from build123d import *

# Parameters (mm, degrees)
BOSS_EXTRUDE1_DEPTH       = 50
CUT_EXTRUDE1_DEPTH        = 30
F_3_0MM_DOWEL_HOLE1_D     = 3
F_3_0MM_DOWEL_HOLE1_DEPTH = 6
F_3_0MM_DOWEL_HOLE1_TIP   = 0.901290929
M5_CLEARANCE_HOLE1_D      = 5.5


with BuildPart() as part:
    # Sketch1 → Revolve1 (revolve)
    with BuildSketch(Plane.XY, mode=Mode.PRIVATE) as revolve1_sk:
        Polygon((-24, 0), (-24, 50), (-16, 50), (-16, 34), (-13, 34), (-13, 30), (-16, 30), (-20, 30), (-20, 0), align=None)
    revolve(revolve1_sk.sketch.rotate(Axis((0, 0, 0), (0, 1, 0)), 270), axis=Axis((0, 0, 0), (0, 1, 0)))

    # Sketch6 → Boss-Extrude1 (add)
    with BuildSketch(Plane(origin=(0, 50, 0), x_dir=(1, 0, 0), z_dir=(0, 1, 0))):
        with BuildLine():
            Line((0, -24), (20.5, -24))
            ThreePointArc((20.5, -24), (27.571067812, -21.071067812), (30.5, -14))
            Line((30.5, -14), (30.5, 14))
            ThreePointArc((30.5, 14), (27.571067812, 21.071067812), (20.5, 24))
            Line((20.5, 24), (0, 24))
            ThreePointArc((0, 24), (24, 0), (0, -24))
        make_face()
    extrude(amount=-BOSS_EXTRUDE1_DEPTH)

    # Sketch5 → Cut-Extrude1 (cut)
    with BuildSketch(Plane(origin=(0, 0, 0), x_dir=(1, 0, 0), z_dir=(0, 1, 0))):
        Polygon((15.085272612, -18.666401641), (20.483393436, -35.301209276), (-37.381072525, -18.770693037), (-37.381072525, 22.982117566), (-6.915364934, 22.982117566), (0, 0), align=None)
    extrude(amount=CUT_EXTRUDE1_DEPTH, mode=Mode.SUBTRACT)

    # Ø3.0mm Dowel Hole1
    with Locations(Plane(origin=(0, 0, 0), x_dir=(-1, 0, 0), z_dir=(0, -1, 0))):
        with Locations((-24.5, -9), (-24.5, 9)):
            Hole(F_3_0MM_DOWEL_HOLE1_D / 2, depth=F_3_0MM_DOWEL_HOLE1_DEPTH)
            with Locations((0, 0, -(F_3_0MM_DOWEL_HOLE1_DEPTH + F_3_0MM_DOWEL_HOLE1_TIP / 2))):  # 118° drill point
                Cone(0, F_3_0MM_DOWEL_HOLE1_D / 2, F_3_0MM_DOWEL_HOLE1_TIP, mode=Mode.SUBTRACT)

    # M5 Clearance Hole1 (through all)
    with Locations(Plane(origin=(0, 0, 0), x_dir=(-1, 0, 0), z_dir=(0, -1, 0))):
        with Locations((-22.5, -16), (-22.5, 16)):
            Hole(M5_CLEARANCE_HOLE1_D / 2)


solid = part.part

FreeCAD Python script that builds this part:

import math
import FreeCAD as App
import Part
import Sketcher

V = App.Vector


def add_polygon(sketch, points):
    """Adds a closed chain of lines whose ends are joined by coincident constraints."""
    first, n = sketch.GeometryCount, len(points)
    for a, b in zip(points, points[1:] + points[:1]):
        sketch.addGeometry(Part.LineSegment(App.Vector(*a, 0), App.Vector(*b, 0)), False)
    for i in range(n):
        sketch.addConstraint(Sketcher.Constraint("Coincident", first + i, 2, first + (i + 1) % n, 1))

doc = App.newDocument("Part")
body = doc.addObject("PartDesign::Body", "Body")

# Sketch on XY plane
sketch1 = body.newObject("Sketcher::SketchObject", "Sketch")
sketch1.AttachmentSupport = (doc.getObject("XY_Plane"), [""])
sketch1.MapMode = "FlatFace"
add_polygon(sketch1, [(-24, 50), (-24, 0), (-20, 0), (-20, 30), (-13, 30), (-13, 34), (-16, 34), (-16, 50)])  # lines 0-7
sketch1.addConstraint([
    Sketcher.Constraint("Vertical", 0),
    Sketcher.Constraint("Horizontal", 1),
    Sketcher.Constraint("Vertical", 2),
    Sketcher.Constraint("Horizontal", 3),
    Sketcher.Constraint("Vertical", 4),
    Sketcher.Constraint("Horizontal", 5),
    Sketcher.Constraint("Vertical", 6),
    Sketcher.Constraint("Horizontal", 7),
    Sketcher.Constraint("PointOnObject", 0, 2, -1),
    Sketcher.Constraint("Equal", 1, 4),
    Sketcher.Constraint("DistanceX", 1, 1, 1, 2, 4.0),
    Sketcher.Constraint("DistanceX", 3, 1, 3, 2, 7.0),
    Sketcher.Constraint("DistanceX", 5, 2, 5, 1, 3.0),
    Sketcher.Constraint("DistanceY", 0, 2, 0, 1, 50.0),
    Sketcher.Constraint("DistanceY", 2, 1, 2, 2, 30.0),
    Sketcher.Constraint("DistanceX", 0, 2, -1, 1, 24.0),
])
revolution = body.newObject("PartDesign::Revolution", "Revolution")
revolution.Profile = sketch1
revolution.ReferenceAxis = (sketch1, ["V_Axis"])
revolution.Angle = 360

# Sketch on XZ plane
sketch2 = body.newObject("Sketcher::SketchObject", "Sketch001")
sketch2.AttachmentSupport = (doc.getObject("XZ_Plane"), [""])
sketch2.MapMode = "FlatFace"
sketch2.AttachmentOffset = App.Placement(V(0, 0, -50), App.Rotation())
sketch2.addGeometry([
    Part.LineSegment(V(0, 24, 0), V(20, 24, 0)),  # 0
    Part.ArcOfCircle(Part.Circle(V(20, 14, 0), V(0, 0, 1), 10), math.radians(0), math.radians(90)),  # 1
    Part.LineSegment(V(30, 14, 0), V(30, -14, 0)),  # 2
    Part.ArcOfCircle(Part.Circle(V(20, -14, 0), V(0, 0, 1), 10), math.radians(-90), math.radians(0)),  # 3
    Part.LineSegment(V(20, -24, 0), V(0, -24, 0)),  # 4
    Part.ArcOfCircle(Part.Circle(V(0, 0, 0), V(0, 0, 1), 24), math.radians(-90), math.radians(90)),  # 5
], False)
sketch2.addConstraint([
    Sketcher.Constraint("Tangent", 0, 2, 1, 2),
    Sketcher.Constraint("Tangent", 1, 1, 2, 1),
    Sketcher.Constraint("Tangent", 2, 2, 3, 2),
    Sketcher.Constraint("Tangent", 3, 1, 4, 1),
    Sketcher.Constraint("Tangent", 4, 2, 5, 1),
    Sketcher.Constraint("Tangent", 5, 2, 0, 1),
    Sketcher.Constraint("Horizontal", 0),
    Sketcher.Constraint("Vertical", 2),
    Sketcher.Constraint("Horizontal", 4),
    Sketcher.Constraint("Coincident", 5, 3, -1, 1),
    Sketcher.Constraint("Equal", 1, 3),
    Sketcher.Constraint("Radius", 1, 10.0),
    Sketcher.Constraint("Radius", 5, 24.0),
    Sketcher.Constraint("DistanceX", 0, 1, 0, 2, 20.5),
])
pad1 = body.newObject("PartDesign::Pad", "Pad")
pad1.Profile = sketch2
pad1.Length = 50

# Sketch on XZ plane
sketch3 = body.newObject("Sketcher::SketchObject", "Sketch002")
sketch3.AttachmentSupport = (doc.getObject("XZ_Plane"), [""])
sketch3.MapMode = "FlatFace"
add_polygon(sketch3, [(20, 35), (15, 19), (0, 0), (-7, -23), (-37, -23), (-37, 19)])  # lines 0-5
sketch3.addConstraint([
    Sketcher.Constraint("Horizontal", 3),
    Sketcher.Constraint("Vertical", 4),
    Sketcher.Constraint("Coincident", 1, 2, -1, 1),
    Sketcher.Constraint("Equal", 1, 2),
    Sketcher.Constraint("Distance", 1, 24.0),
    Sketcher.Constraint("DistanceY", 4, 1, 4, 2, 41.752811),
    Sketcher.Constraint("DistanceY", -1, 1, 0, 2, 18.666402),
    Sketcher.Constraint("Distance", 5, 60.179352),
    Sketcher.Constraint("DistanceX", 3, 2, 3, 1, 30.465708),
    Sketcher.Constraint("DistanceY", -1, 1, 5, 2, 35.301209),
    Sketcher.Constraint("DistanceY", 2, 2, 0, 2, 41.648519),
])
pocket1 = body.newObject("PartDesign::Pocket", "Pocket")
pocket1.Profile = sketch3
pocket1.Length = 30

# Sketch on XZ plane
sketch4 = body.newObject("Sketcher::SketchObject", "Sketch003")
sketch4.AttachmentSupport = (doc.getObject("XZ_Plane"), [""])
sketch4.MapMode = "FlatFace"
sketch4.addGeometry([
    Part.Circle(V(24.5, 9, 0), V(0, 0, 1), 1.5),
    Part.Circle(V(24.5, -9, 0), V(0, 0, 1), 1.5),
], False)
sketch4.addConstraint([
    Sketcher.Constraint("Equal", 0, 1),
    Sketcher.Constraint("Symmetric", 0, 3, 1, 3, -1),
    Sketcher.Constraint("Diameter", 0, 3.0),
    Sketcher.Constraint("DistanceY", -1, 1, 0, 3, 9.0),
    Sketcher.Constraint("DistanceX", -1, 1, 0, 3, 24.5),
])
doc.recompute()
hole = body.newObject("PartDesign::Hole", "Hole")
hole.Profile = sketch4
hole.ThreadType = "None"
hole.Diameter = 3
hole.DepthType = "Dimension"
hole.Depth = 6
hole.DrillPoint = "Angled"
hole.DrillPointAngle = 118

# Sketch on XZ plane
sketch5 = body.newObject("Sketcher::SketchObject", "Sketch004")
sketch5.AttachmentSupport = (doc.getObject("XZ_Plane"), [""])
sketch5.MapMode = "FlatFace"
sketch5.addGeometry([
    Part.Circle(V(22.5, 16, 0), V(0, 0, 1), 2.8),
    Part.Circle(V(22.5, -16, 0), V(0, 0, 1), 2.8),
], False)
sketch5.addConstraint([
    Sketcher.Constraint("Equal", 0, 1),
    Sketcher.Constraint("Symmetric", 0, 3, 1, 3, -1),
    Sketcher.Constraint("Diameter", 0, 5.5),
    Sketcher.Constraint("DistanceY", -1, 1, 0, 3, 16.0),
    Sketcher.Constraint("DistanceX", -1, 1, 0, 3, 22.5),
])
doc.recompute()
hole2 = body.newObject("PartDesign::Hole", "Hole001")
hole2.Profile = sketch5
hole2.ThreadType = "None"
hole2.Diameter = 5.5
hole2.DepthType = "ThroughAll"

doc.recompute()
